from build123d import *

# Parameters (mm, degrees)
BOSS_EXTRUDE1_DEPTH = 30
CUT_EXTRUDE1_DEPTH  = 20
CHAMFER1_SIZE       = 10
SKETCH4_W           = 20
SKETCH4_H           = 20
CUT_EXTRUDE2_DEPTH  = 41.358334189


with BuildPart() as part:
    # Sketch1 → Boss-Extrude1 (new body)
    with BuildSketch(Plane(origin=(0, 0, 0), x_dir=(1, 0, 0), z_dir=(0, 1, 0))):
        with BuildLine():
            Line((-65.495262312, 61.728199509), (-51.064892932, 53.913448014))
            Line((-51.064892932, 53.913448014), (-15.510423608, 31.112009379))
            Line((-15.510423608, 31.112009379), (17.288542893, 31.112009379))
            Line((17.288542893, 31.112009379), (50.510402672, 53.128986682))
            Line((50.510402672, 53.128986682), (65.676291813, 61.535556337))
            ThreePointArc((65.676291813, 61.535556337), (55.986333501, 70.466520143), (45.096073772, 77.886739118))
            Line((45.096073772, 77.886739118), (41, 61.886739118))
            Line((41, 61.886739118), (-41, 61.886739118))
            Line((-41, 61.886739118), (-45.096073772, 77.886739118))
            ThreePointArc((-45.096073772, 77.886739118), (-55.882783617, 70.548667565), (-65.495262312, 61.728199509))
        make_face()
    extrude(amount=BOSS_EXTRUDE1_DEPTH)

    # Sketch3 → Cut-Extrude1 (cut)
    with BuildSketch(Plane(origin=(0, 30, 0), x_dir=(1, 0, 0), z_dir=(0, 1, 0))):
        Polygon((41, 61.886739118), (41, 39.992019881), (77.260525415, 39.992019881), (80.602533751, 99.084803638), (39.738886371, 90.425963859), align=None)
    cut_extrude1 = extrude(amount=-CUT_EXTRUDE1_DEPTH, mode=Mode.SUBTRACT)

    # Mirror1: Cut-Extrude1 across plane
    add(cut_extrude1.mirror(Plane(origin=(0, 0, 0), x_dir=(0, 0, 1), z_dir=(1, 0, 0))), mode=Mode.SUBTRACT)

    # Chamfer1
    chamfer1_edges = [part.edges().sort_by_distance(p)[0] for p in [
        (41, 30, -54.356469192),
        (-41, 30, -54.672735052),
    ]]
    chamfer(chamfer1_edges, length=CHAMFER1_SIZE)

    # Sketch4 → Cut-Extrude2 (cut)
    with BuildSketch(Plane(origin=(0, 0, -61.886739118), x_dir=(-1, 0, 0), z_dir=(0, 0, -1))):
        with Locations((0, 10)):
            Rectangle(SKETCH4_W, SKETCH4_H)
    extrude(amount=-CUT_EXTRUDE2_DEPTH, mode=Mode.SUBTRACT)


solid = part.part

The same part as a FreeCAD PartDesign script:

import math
import FreeCAD as App
import Part
import Sketcher

V = App.Vector
Q = App.Units.Quantity


def edges_at(feature, points):
    """Names of the edges that pass closest to the given points."""
    edges = feature.Shape.Edges
    near = lambda p: min(range(len(edges)), key=lambda i: edges[i].distToShape(Part.Vertex(*p))[0])
    return sorted({f"Edge{near(p) + 1}" for p in points})

doc = App.newDocument("Part")
body = doc.addObject("PartDesign::Body", "Body")

sketch1 = body.newObject("Sketcher::SketchObject", "Sketch")
sketch1.AttachmentSupport = (doc.getObject("XZ_Plane"), [""])
sketch1.MapMode = "FlatFace"
sketch1.addGeometry([
    Part.LineSegment(V(-65.495262, -61.7282, 0), V(-51.064893, -53.913448, 0)),
    Part.LineSegment(V(-51.064893, -53.913448, 0), V(-15.510424, -31.112009, 0)),
    Part.LineSegment(V(-15.510424, -31.112009, 0), V(17.288543, -31.112009, 0)),
    Part.LineSegment(V(17.288543, -31.112009, 0), V(50.510403, -53.128987, 0)),
    Part.LineSegment(V(50.510403, -53.128987, 0), V(65.676292, -61.535556, 0)),
    Part.ArcOfCircle(Part.Circle(V(0, 0, 0), V(0, 0, 1), 90), math.radians(-59.92935), math.radians(-43.135685)),
    Part.LineSegment(V(45.096074, -77.886739, 0), V(41, -61.886739, 0)),
    Part.LineSegment(V(41, -61.886739, 0), V(-41, -61.886739, 0)),
    Part.LineSegment(V(-41, -61.886739, 0), V(-45.096074, -77.886739, 0)),
    Part.ArcOfCircle(Part.Circle(V(0, 0, 0), V(0, 0, 1), 90), math.radians(-136.696022), math.radians(-120.070649)),
], False)
sketch1.addConstraint([
    Sketcher.Constraint("Coincident", 0, 2, 1, 1),
    Sketcher.Constraint("Coincident", 1, 2, 2, 1),
    Sketcher.Constraint("Coincident", 2, 2, 3, 1),
    Sketcher.Constraint("Coincident", 3, 2, 4, 1),
    Sketcher.Constraint("Coincident", 4, 2, 5, 2),
    Sketcher.Constraint("Coincident", 5, 1, 6, 1),
    Sketcher.Constraint("Coincident", 6, 2, 7, 1),
    Sketcher.Constraint("Coincident", 7, 2, 8, 1),
    Sketcher.Constraint("Coincident", 8, 2, 9, 2),
    Sketcher.Constraint("Coincident", 9, 1, 0, 1),
    Sketcher.Constraint("Horizontal", 2),
    Sketcher.Constraint("Horizontal", 7),
    Sketcher.Constraint("Coincident", 5, 3, -1, 1),
    Sketcher.Constraint("Coincident", 9, 3, -1, 1),
    Sketcher.Constraint("Equal", 5, 9),
    Sketcher.Constraint("Horizontal", 5, 1, 8, 2),
    Sketcher.Constraint("Equal", 6, 8),
    Sketcher.Constraint("Radius", 5, Q("90 mm")),
    Sketcher.Constraint("DistanceX", 7, 2, 7, 1, Q("82 mm")),
    Sketcher.Constraint("DistanceY", 5, 1, 6, 2, Q("16 mm")),
    Sketcher.Constraint("DistanceY", 9, 1, -1, 1, Q("61.7282 mm")),
    Sketcher.Constraint("Distance", 1, Q("42.237731 mm")),
    Sketcher.Constraint("Distance", 3, Q("39.855229 mm")),
    Sketcher.Constraint("Distance", 4, Q("17.339971 mm")),
    Sketcher.Constraint("DistanceX", 2, 1, 2, 2, Q("32.798967 mm")),
    Sketcher.Constraint("DistanceY", 0, 2, -1, 1, Q("53.913448 mm")),
    Sketcher.Constraint("DistanceY", 1, 2, -1, 1, Q("31.112009 mm")),
    Sketcher.Constraint("DistanceX", -1, 1, 4, 2, Q("65.676292 mm")),
    Sketcher.Constraint("DistanceY", 5, 1, -1, 1, Q("77.886739 mm")),
    Sketcher.Constraint("DistanceX", 2, 2, 3, 2, Q("33.22186 mm")),
])
pad1 = body.newObject("PartDesign::Pad", "Pad")
pad1.Profile = sketch1
pad1.Length = 30
pad1.Reversed = True

sketch2 = body.newObject("Sketcher::SketchObject", "Sketch001")
sketch2.AttachmentSupport = (doc.getObject("XZ_Plane"), [""])
sketch2.MapMode = "FlatFace"
sketch2.AttachmentOffset = App.Placement(V(0, 0, -30), App.Rotation())
sketch2.addGeometry([
    Part.LineSegment(V(41, -61.886739, 0), V(41, -39.99202, 0)),
    Part.LineSegment(V(41, -39.99202, 0), V(77.260525, -39.99202, 0)),
    Part.LineSegment(V(77.260525, -39.99202, 0), V(80.602534, -99.084804, 0)),
    Part.LineSegment(V(80.602534, -99.084804, 0), V(39.738886, -90.425964, 0)),
    Part.LineSegment(V(39.738886, -90.425964, 0), V(41, -61.886739, 0)),
], False)
sketch2.addConstraint([
    Sketcher.Constraint("Coincident", 0, 2, 1, 1),
    Sketcher.Constraint("Coincident", 1, 2, 2, 1),
    Sketcher.Constraint("Coincident", 2, 2, 3, 1),
    Sketcher.Constraint("Coincident", 3, 2, 4, 1),
    Sketcher.Constraint("Coincident", 4, 2, 0, 1),
    Sketcher.Constraint("Vertical", 0),
    Sketcher.Constraint("Horizontal", 1),
    Sketcher.Constraint("DistanceX", -1, 1, 0, 2, Q("41 mm")),
    Sketcher.Constraint("DistanceY", 0, 1, 0, 2, Q("21.894719 mm")),
    Sketcher.Constraint("Distance", 3, Q("41.770961 mm")),
    Sketcher.Constraint("DistanceX", 1, 1, 1, 2, Q("36.260525 mm")),
    Sketcher.Constraint("DistanceY", 0, 2, -1, 1, Q("39.99202 mm")),
    Sketcher.Constraint("DistanceX", 1, 2, 2, 2, Q("3.342008 mm")),
    Sketcher.Constraint("DistanceY", 2, 2, 3, 2, Q("8.65884 mm")),
    Sketcher.Constraint("Distance", 2, Q("59.187212 mm")),
])
pocket1 = body.newObject("PartDesign::Pocket", "Pocket")
pocket1.Profile = sketch2
pocket1.Length = 20
pocket1.Reversed = True
doc.recompute()

mirrored = body.newObject("PartDesign::Mirrored", "Mirrored")
mirrored.Originals = [pocket1]
mirrored.MirrorPlane = (doc.getObject("YZ_Plane"), [""])
body.Tip = mirrored
doc.recompute()

chamfer = body.newObject("PartDesign::Chamfer", "Chamfer")
chamfer.Base = (mirrored, edges_at(mirrored, [(41, 30, -54.356), (-41, 30, -54.673)]))
chamfer.Size = 10

sketch3 = body.newObject("Sketcher::SketchObject", "Sketch002")
sketch3.AttachmentSupport = (doc.getObject("XY_Plane"), [""])
sketch3.MapMode = "FlatFace"
sketch3.AttachmentOffset = App.Placement(V(0, 0, -61.886739), App.Rotation())
sketch3.addGeometry([
    Part.LineSegment(V(10, 20, 0), V(10, 0, 0)),
    Part.LineSegment(V(10, 0, 0), V(-10, 0, 0)),
    Part.LineSegment(V(-10, 0, 0), V(-10, 20, 0)),
    Part.LineSegment(V(-10, 20, 0), V(10, 20, 0)),
], False)
sketch3.addConstraint([
    Sketcher.Constraint("Coincident", 0, 2, 1, 1),
    Sketcher.Constraint("Coincident", 1, 2, 2, 1),
    Sketcher.Constraint("Coincident", 2, 2, 3, 1),
    Sketcher.Constraint("Coincident", 3, 2, 0, 1),
    Sketcher.Constraint("Vertical", 0),
    Sketcher.Constraint("Horizontal", 1),
    Sketcher.Constraint("Vertical", 2),
    Sketcher.Constraint("Horizontal", 3),
    Sketcher.Constraint("Symmetric", 0, 2, 1, 2, -1, 1),
    Sketcher.Constraint("Equal", 3, 0),
    Sketcher.Constraint("DistanceX", 1, 2, 1, 1, Q("20 mm")),
])
pocket2 = body.newObject("PartDesign::Pocket", "Pocket001")
pocket2.Profile = sketch3
pocket2.Length = 41.358334
pocket2.Reversed = True

doc.recompute()
